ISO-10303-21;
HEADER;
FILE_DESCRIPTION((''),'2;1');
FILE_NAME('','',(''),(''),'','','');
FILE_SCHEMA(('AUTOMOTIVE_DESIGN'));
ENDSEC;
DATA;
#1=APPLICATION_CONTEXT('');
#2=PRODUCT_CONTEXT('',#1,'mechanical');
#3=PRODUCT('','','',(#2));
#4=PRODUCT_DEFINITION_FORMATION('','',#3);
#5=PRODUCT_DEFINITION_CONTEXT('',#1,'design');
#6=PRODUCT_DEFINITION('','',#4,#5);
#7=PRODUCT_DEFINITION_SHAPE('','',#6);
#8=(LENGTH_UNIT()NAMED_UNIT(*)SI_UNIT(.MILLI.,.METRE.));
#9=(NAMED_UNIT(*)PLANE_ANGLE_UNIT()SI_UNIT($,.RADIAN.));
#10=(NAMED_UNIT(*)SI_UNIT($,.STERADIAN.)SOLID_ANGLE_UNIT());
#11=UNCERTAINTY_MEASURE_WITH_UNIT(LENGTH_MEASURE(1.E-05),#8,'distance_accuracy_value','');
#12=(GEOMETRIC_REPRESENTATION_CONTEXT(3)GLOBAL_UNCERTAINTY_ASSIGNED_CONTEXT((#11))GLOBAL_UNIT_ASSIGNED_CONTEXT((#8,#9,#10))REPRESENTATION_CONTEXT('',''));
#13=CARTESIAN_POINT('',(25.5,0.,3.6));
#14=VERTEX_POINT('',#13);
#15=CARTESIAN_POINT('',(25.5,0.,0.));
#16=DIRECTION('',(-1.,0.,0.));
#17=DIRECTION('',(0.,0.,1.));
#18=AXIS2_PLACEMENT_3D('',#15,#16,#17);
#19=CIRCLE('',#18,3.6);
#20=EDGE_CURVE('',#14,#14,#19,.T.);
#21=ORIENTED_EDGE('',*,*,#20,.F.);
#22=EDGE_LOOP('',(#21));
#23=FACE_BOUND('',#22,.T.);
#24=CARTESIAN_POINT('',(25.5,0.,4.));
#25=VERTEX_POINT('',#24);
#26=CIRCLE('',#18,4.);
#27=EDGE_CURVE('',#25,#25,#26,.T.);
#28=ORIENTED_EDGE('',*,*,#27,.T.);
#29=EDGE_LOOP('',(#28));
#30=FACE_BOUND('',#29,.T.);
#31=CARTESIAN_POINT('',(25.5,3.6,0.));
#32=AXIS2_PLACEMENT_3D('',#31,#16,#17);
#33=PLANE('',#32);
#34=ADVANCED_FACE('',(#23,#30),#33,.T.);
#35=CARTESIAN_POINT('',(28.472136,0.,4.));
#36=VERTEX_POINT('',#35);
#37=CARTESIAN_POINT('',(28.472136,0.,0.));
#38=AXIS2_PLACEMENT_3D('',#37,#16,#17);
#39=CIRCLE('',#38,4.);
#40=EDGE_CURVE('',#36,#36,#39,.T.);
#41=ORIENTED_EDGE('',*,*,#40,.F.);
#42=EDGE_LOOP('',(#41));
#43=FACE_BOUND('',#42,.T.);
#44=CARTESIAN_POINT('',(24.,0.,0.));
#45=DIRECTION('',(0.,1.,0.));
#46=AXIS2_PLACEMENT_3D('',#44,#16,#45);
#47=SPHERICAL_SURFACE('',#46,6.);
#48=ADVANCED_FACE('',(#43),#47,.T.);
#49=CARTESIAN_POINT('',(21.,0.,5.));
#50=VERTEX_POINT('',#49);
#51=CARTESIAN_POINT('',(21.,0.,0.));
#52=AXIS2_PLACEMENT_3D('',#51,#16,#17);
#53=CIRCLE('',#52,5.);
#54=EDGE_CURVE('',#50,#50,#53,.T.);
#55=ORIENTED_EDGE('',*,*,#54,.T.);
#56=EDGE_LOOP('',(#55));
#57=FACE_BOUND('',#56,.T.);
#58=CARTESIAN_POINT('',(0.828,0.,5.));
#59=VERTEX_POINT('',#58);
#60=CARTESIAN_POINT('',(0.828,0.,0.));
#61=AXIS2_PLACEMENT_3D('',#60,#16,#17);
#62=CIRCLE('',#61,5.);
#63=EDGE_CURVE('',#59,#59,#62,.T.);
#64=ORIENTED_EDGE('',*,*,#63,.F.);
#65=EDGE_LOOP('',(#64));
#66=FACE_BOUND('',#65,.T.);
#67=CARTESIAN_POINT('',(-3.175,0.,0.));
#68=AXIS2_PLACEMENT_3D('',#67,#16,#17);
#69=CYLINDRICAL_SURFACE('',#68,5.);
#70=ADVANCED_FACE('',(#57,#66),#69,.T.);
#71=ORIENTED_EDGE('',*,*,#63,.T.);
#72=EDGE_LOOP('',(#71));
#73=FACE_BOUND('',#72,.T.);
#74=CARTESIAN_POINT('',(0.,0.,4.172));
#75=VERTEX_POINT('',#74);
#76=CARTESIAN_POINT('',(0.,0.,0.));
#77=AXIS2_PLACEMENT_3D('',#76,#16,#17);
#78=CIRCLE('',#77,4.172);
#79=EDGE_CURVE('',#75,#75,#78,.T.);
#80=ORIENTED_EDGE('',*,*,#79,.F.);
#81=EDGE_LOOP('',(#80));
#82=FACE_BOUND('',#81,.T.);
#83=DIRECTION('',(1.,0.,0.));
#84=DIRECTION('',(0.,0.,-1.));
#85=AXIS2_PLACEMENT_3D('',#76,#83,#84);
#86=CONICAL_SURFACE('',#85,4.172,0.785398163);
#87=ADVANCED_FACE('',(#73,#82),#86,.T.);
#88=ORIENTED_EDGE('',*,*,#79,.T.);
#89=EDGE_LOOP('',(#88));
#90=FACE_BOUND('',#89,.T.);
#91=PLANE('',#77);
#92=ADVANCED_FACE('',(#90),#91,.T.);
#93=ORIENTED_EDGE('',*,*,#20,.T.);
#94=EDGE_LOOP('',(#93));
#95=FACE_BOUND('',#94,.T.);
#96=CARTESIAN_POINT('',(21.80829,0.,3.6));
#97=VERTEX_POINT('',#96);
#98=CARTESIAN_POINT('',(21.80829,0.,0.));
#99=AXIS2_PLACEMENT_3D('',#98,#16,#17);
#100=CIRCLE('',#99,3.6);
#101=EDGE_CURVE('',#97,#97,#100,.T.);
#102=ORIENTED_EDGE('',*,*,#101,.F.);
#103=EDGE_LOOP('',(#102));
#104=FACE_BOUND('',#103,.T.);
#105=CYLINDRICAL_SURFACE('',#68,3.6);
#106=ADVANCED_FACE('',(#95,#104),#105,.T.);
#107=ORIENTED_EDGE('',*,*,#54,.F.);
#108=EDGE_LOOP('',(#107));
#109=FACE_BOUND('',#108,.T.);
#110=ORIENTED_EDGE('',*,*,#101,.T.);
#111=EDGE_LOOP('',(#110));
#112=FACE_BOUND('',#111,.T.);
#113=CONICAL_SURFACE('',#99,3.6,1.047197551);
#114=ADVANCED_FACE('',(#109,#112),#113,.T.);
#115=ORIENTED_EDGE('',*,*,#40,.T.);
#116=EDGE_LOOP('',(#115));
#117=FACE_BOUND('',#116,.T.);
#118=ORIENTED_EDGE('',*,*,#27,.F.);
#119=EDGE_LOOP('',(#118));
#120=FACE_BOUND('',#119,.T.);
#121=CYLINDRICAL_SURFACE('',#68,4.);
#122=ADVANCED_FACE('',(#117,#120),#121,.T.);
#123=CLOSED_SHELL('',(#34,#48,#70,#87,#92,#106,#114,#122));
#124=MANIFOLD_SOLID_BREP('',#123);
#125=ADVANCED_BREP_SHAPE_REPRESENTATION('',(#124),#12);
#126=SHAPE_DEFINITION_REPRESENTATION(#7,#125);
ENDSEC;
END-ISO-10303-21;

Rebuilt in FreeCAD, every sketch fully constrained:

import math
import FreeCAD as App
import Part
import Sketcher
from FreeCAD import Vector
Q = App.Units.Quantity

doc = App.newDocument("Part")
body = doc.addObject("PartDesign::Body", "Body")

sketch1 = doc.addObject("Sketcher::SketchObject", "Sketch")
body.addObject(sketch1)
sketch1.AttachmentSupport = (doc.XY_Plane, [""])
sketch1.MapMode = "FlatFace"
sketch1.addGeometry([
    Part.LineSegment(Vector(25.5, 3.6, 0), Vector(21.81, 3.6, 0)),
    Part.LineSegment(Vector(21.81, 3.6, 0), Vector(21, 5, 0)),
    Part.LineSegment(Vector(21, 5, 0), Vector(0.83, 5, 0)),
    Part.LineSegment(Vector(0.83, 5, 0), Vector(0, 4.17, 0)),
    Part.LineSegment(Vector(0, 4.17, 0), Vector(0, 0, 0)),
    Part.LineSegment(Vector(0, 0, 0), Vector(30, 0, 0)),
    Part.ArcOfCircle(Part.Circle(Vector(24, 0, 0), Vector(0, 0, 1), 6), math.radians(0), math.radians(42)),
    Part.LineSegment(Vector(28.47, 4, 0), Vector(25.5, 4, 0)),
    Part.LineSegment(Vector(25.5, 4, 0), Vector(25.5, 3.6, 0)),
], False)
sketch1.addConstraint([
    Sketcher.Constraint("Coincident", 0, 2, 1, 1),
    Sketcher.Constraint("Coincident", 1, 2, 2, 1),
    Sketcher.Constraint("Coincident", 2, 2, 3, 1),
    Sketcher.Constraint("Coincident", 3, 2, 4, 1),
    Sketcher.Constraint("Coincident", 4, 2, 5, 1),
    Sketcher.Constraint("Coincident", 5, 2, 6, 1),
    Sketcher.Constraint("Coincident", 6, 2, 7, 1),
    Sketcher.Constraint("Coincident", 7, 2, 8, 1),
    Sketcher.Constraint("Coincident", 8, 2, 0, 1),
    Sketcher.Constraint("Horizontal", 0),
    Sketcher.Constraint("Horizontal", 2),
    Sketcher.Constraint("Vertical", 4),
    Sketcher.Constraint("Horizontal", 5),
    Sketcher.Constraint("Horizontal", 7),
    Sketcher.Constraint("Vertical", 8),
    Sketcher.Constraint("Coincident", 4, 2, -1, 1),
    Sketcher.Constraint("PointOnObject", 6, 3, -1),
    Sketcher.Constraint("Radius", 6, Q("6 mm")),
    Sketcher.Constraint("DistanceX", 5, 1, 5, 2, Q("30 mm")),
    Sketcher.Constraint("Angle", 1, Q("120 deg")),
    Sketcher.Constraint("Angle", 3, Q("-135 deg")),
    Sketcher.Constraint("DistanceY", 8, 2, 8, 1, Q("0.4 mm")),
    Sketcher.Constraint("DistanceX", -1, 1, 1, 2, Q("21 mm")),
    Sketcher.Constraint("DistanceY", -1, 1, 1, 2, Q("5 mm")),
    Sketcher.Constraint("DistanceY", -1, 1, 6, 2, Q("4 mm")),
    Sketcher.Constraint("DistanceX", -1, 1, 7, 2, Q("25.5 mm")),
    Sketcher.Constraint("DistanceX", 2, 2, 2, 1, Q("20.172 mm")),
])
revolution = doc.addObject("PartDesign::Revolution", "Revolution")
body.addObject(revolution)
revolution.Profile = sketch1
revolution.ReferenceAxis = (sketch1, ["H_Axis"])
revolution.Angle = 360

doc.recompute()
